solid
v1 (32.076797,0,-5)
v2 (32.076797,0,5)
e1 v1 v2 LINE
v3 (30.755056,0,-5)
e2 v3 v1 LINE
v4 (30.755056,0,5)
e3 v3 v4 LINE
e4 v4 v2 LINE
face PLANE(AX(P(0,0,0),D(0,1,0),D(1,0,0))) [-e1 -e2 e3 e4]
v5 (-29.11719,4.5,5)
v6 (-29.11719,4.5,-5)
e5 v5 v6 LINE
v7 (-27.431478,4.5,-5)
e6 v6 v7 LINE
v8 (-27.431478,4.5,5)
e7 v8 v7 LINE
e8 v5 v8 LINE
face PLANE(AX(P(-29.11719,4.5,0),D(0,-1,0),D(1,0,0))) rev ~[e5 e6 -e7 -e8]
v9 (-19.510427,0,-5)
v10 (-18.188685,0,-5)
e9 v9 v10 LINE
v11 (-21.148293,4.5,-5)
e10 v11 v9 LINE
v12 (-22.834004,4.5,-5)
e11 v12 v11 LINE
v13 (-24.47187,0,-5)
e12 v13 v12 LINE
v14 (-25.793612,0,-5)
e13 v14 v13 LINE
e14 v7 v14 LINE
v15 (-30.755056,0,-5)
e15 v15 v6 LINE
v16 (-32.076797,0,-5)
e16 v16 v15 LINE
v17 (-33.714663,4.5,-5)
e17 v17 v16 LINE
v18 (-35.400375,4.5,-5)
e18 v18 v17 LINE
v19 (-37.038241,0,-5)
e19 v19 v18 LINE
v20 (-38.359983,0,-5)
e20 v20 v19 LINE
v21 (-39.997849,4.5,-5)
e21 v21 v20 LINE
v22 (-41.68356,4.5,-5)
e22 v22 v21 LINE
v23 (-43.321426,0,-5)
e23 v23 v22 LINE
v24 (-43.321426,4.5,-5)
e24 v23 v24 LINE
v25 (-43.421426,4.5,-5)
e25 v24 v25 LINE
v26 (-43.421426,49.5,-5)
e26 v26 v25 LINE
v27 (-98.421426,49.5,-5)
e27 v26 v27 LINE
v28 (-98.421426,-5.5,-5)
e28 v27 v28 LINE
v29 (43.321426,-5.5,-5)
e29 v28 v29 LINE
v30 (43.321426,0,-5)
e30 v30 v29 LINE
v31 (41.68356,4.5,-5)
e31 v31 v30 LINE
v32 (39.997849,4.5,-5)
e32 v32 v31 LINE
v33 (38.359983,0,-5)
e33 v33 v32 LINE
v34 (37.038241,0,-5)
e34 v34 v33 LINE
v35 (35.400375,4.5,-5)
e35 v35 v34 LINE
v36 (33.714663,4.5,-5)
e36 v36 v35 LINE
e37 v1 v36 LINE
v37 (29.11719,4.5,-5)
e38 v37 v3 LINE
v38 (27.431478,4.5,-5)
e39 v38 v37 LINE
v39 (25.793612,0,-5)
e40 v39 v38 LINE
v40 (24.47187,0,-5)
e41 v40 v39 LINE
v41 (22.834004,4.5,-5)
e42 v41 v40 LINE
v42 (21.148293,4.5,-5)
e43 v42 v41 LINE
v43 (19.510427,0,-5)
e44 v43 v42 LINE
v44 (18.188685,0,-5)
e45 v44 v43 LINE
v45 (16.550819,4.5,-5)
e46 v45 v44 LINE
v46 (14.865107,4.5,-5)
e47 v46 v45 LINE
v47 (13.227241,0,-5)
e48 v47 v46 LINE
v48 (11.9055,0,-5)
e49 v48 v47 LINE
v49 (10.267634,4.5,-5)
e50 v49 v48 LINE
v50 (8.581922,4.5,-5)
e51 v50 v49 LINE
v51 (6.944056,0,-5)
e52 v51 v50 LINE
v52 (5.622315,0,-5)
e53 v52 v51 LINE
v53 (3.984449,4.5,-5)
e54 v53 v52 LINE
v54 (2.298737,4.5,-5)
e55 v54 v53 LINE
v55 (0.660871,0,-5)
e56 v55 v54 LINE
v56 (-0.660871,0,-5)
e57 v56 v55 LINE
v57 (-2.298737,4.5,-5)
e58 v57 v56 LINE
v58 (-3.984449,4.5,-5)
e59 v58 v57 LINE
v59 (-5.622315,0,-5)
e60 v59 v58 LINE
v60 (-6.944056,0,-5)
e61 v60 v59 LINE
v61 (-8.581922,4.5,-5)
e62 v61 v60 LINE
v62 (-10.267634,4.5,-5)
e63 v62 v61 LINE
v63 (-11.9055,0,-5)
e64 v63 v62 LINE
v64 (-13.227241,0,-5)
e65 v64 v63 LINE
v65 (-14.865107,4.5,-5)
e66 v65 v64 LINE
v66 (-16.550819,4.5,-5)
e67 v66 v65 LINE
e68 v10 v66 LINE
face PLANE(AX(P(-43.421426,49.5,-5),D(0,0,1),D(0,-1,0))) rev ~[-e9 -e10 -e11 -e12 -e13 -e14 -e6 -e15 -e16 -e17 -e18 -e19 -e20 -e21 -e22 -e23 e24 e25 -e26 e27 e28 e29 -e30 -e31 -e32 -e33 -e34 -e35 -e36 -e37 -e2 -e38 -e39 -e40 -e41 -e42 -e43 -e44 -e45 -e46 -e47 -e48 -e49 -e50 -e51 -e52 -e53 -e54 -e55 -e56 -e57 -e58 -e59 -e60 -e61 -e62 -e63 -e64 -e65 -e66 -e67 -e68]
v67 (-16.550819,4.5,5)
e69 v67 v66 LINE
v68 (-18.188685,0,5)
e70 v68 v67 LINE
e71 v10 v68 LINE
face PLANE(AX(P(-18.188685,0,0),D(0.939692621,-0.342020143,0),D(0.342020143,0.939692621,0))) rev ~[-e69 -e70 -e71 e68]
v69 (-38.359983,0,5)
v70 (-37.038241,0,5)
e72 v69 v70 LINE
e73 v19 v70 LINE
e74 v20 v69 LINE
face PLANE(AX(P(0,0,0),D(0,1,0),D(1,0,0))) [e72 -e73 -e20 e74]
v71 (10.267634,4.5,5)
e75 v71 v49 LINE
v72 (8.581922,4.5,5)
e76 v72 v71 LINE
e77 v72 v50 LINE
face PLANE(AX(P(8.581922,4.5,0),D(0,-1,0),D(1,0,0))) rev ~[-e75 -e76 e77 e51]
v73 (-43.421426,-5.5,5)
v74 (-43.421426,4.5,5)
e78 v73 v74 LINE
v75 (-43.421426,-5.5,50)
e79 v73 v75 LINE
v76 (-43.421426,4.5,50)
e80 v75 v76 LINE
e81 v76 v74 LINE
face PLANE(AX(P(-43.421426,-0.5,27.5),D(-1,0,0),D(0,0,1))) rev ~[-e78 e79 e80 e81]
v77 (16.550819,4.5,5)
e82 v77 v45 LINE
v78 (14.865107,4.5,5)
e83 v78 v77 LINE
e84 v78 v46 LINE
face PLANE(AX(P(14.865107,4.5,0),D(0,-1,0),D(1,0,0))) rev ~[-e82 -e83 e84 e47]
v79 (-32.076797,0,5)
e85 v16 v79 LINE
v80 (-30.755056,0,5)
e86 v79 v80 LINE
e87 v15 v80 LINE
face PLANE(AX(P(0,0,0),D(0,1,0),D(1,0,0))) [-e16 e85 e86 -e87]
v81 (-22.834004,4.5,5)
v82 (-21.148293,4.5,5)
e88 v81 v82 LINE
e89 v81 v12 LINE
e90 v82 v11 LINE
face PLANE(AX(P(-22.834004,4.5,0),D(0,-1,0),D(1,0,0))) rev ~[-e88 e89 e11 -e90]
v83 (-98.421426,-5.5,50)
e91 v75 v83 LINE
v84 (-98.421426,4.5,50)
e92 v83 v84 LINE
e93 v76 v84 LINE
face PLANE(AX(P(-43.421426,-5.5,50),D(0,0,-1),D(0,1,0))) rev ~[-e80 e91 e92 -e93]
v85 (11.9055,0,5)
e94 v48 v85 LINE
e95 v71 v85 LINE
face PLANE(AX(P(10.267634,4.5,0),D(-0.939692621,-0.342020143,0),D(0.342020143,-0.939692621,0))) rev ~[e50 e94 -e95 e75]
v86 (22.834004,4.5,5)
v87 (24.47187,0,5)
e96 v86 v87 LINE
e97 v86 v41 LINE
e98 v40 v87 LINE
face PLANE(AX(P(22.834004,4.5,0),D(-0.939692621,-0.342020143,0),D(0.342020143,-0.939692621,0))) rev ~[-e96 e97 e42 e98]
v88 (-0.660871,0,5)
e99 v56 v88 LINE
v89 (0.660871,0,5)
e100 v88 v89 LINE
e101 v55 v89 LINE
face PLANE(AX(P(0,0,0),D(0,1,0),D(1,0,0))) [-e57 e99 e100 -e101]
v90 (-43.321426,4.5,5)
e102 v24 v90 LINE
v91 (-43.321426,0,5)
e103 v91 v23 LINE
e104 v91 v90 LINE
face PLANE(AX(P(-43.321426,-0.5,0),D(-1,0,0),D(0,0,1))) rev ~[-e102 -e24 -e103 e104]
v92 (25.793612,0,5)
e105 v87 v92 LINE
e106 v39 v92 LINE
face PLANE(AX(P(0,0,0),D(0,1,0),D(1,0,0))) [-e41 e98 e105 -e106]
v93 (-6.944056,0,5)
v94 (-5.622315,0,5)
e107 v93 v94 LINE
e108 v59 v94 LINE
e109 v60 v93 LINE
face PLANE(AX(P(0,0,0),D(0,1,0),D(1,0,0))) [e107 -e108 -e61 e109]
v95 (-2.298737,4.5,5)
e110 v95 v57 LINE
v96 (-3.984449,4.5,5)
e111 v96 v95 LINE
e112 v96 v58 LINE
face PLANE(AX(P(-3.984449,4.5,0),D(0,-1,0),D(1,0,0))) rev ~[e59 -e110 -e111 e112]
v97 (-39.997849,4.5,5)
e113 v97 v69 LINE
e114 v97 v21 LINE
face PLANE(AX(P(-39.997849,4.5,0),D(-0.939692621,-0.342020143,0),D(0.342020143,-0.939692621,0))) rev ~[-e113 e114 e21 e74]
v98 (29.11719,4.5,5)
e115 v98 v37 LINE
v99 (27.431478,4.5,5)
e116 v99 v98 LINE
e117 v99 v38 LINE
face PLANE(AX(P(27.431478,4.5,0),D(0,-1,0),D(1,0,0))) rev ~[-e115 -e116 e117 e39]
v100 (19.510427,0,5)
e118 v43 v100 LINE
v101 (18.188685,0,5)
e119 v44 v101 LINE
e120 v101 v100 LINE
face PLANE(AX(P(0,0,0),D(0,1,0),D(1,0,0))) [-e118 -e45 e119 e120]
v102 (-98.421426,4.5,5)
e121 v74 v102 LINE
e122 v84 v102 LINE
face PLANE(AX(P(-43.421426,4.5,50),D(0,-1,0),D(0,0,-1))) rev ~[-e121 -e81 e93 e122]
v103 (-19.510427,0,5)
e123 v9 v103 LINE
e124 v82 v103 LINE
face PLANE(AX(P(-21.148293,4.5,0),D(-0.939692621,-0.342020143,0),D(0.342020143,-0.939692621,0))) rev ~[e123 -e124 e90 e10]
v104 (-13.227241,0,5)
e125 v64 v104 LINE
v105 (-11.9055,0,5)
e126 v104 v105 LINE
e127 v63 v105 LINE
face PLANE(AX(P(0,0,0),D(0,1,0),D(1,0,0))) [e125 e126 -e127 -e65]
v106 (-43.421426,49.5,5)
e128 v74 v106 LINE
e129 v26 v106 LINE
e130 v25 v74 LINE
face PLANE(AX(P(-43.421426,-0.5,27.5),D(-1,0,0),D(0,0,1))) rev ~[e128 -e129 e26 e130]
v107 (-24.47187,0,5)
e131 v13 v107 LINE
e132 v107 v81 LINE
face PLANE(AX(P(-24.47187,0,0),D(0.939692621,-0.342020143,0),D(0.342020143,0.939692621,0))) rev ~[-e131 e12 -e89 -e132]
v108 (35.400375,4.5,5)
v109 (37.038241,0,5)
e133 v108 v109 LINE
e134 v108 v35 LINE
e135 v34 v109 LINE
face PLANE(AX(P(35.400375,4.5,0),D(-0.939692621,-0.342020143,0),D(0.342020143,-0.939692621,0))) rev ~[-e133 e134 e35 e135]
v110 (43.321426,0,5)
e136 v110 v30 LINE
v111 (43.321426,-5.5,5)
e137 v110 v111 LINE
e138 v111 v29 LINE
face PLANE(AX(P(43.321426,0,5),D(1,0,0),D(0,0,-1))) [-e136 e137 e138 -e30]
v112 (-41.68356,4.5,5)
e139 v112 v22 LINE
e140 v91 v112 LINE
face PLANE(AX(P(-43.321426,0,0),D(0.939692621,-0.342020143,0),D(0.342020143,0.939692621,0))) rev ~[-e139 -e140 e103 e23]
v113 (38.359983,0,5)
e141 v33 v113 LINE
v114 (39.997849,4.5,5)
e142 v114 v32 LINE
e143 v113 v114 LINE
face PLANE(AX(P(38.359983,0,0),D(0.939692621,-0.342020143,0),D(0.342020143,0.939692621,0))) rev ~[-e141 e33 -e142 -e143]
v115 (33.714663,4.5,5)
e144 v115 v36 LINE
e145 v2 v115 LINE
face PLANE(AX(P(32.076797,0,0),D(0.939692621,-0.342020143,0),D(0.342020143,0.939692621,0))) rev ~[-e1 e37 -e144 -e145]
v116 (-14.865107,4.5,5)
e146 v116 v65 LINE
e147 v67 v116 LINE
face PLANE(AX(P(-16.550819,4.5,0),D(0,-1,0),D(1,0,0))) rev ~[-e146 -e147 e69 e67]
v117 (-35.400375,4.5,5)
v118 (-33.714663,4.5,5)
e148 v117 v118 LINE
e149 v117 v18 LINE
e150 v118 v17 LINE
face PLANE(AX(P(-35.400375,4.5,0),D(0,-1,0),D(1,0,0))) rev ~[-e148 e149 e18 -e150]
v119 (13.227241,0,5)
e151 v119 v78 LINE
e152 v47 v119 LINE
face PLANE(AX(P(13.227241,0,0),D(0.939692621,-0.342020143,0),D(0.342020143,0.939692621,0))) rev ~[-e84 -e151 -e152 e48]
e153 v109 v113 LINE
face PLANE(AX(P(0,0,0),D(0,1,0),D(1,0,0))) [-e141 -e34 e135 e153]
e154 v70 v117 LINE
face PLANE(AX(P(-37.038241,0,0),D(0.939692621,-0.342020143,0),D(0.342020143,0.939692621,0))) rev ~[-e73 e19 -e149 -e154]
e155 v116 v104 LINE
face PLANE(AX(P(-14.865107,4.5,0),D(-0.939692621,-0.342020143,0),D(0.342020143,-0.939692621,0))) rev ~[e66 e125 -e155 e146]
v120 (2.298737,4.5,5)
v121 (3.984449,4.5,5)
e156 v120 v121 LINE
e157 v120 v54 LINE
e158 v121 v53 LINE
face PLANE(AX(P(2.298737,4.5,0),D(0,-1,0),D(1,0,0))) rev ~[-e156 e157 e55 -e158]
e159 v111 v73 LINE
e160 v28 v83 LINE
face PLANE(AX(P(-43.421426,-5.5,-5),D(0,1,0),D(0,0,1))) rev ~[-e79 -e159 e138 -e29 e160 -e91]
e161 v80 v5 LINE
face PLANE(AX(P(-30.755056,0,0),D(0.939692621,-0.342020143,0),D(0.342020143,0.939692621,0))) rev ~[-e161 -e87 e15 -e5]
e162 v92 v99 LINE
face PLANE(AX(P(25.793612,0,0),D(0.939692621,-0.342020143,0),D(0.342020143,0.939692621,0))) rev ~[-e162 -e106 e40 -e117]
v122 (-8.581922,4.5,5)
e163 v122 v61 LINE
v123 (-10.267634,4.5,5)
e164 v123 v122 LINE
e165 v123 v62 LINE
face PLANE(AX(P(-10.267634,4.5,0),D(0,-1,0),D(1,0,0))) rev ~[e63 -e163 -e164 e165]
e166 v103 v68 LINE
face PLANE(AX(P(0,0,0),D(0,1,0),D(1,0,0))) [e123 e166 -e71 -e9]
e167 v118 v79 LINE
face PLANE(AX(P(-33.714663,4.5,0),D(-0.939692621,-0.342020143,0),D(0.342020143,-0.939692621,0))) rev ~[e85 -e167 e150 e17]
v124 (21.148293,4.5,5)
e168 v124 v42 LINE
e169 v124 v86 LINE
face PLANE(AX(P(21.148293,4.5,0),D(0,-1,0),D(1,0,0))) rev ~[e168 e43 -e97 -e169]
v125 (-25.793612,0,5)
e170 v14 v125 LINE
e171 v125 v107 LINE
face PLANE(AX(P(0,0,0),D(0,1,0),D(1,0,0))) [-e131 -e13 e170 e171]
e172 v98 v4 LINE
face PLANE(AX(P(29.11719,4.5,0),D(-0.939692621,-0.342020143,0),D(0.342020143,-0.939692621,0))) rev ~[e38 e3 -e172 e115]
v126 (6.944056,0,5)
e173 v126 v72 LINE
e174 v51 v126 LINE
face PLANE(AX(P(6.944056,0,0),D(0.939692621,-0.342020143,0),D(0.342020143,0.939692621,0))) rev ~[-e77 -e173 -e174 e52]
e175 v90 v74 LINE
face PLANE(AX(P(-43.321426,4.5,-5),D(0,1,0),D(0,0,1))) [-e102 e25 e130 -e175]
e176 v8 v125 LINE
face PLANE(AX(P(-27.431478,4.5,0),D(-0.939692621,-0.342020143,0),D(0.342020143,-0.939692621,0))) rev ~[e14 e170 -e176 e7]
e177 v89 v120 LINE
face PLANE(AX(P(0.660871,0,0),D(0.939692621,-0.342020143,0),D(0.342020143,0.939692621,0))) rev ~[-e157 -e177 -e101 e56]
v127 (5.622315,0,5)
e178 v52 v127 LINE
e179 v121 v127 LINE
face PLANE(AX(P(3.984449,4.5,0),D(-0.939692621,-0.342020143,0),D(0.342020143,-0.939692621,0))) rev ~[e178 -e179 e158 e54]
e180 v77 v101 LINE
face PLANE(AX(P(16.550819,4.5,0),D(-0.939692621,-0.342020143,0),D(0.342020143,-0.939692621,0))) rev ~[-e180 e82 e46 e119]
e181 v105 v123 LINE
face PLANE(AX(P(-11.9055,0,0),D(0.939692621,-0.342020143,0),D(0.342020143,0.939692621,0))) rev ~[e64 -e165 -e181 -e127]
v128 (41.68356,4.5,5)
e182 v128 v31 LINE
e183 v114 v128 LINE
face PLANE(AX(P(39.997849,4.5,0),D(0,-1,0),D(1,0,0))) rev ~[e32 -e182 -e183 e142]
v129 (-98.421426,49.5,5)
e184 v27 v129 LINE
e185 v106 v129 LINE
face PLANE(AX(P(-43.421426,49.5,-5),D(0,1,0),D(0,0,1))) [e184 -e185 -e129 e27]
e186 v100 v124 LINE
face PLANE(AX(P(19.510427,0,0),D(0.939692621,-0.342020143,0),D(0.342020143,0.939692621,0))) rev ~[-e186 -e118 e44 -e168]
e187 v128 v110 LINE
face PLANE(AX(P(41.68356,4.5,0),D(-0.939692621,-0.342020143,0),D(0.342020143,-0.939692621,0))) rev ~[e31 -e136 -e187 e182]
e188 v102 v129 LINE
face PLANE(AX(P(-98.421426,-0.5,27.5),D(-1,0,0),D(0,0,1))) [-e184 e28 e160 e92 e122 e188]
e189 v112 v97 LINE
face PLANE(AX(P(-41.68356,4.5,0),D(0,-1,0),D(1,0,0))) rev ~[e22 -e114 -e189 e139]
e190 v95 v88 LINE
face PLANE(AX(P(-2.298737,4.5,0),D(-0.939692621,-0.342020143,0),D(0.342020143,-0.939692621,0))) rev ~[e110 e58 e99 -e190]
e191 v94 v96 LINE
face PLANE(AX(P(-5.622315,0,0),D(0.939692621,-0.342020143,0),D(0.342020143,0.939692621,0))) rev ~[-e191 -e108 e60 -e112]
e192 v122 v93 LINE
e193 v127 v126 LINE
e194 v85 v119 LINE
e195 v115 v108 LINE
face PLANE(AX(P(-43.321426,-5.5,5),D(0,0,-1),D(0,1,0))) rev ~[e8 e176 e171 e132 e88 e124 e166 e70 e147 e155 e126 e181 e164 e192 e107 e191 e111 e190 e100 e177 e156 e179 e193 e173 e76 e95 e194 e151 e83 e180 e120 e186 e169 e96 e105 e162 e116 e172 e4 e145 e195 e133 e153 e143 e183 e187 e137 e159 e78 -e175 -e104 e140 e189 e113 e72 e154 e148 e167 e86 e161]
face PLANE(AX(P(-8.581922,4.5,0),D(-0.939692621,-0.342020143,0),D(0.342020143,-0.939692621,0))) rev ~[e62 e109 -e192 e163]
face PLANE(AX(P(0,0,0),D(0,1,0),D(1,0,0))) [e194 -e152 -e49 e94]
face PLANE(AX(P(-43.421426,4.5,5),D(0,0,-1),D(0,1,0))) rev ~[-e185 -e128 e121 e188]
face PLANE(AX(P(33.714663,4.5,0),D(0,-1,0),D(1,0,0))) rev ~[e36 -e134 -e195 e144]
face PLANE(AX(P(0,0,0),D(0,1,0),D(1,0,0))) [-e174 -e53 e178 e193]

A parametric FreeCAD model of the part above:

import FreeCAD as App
import Part
import Sketcher
from FreeCAD import Vector
Q = App.Units.Quantity

doc = App.newDocument("Part")
params = doc.addObject("Spreadsheet::Sheet", "Params")
for row, (alias, value) in enumerate([
    ("sketch1_height", "10 mm"),
    ("pad1_length", "5.5 mm"),
    ("pad2_length", "10 mm"),
    ("linearpattern_pitch", "6.283185 mm"),
    ("sketch3_width", "10 mm"),
    ("pad3_length", "0.1 mm"),
    ("sketch4_width", "10 mm"),
    ("sketch4_width2", "45 mm"),
    ("pad4_length", "55 mm"),
], start=1):
    params.set(f"A{row}", alias)
    params.set(f"B{row}", "=" + value)
    params.setAlias(f"B{row}", alias)

body = doc.addObject("PartDesign::Body", "Body")

sketch1 = body.newObject("Sketcher::SketchObject", "Sketch")
sketch1.AttachmentSupport = (doc.getObject("XZ_Plane"), [""])
sketch1.MapMode = "FlatFace"
sketch1.addGeometry([
    Part.LineSegment(Vector(-43, -5, 0), Vector(-43, 5, 0)),
    Part.LineSegment(Vector(-43, 5, 0), Vector(43, 5, 0)),
    Part.LineSegment(Vector(43, 5, 0), Vector(43, -5, 0)),
    Part.LineSegment(Vector(43, -5, 0), Vector(-43, -5, 0)),
], False)
sketch1.addConstraint([
    Sketcher.Constraint("Coincident", 0, 2, 1, 1),
    Sketcher.Constraint("Coincident", 1, 2, 2, 1),
    Sketcher.Constraint("Coincident", 2, 2, 3, 1),
    Sketcher.Constraint("Coincident", 3, 2, 0, 1),
    Sketcher.Constraint("Vertical", 0),
    Sketcher.Constraint("Horizontal", 1),
    Sketcher.Constraint("Vertical", 2),
    Sketcher.Constraint("Horizontal", 3),
    Sketcher.Constraint("Symmetric", 0, 2, 2, 2, -1, 1),
    Sketcher.Constraint("DistanceY", 0, 1, 0, 2, 10.0),
    Sketcher.Constraint("DistanceX", 1, 1, 1, 2, 86.642853),
])
sketch1.setExpression("Constraints[9]", "Params.sketch1_height")
pad1 = body.newObject("PartDesign::Pad", "Pad")
pad1.Profile = sketch1
pad1.setExpression("Length", "Params.pad1_length")

sketch2 = body.newObject("Sketcher::SketchObject", "Sketch001")
sketch2.AttachmentSupport = (doc.getObject("XY_Plane"), [""])
sketch2.MapMode = "FlatFace"
sketch2.addGeometry([
    Part.LineSegment(Vector(-41.7, 4.5, 0), Vector(-43.3, 0, 0)),
    Part.LineSegment(Vector(-43.3, 0, 0), Vector(-38.4, 0, 0)),
    Part.LineSegment(Vector(-38.4, 0, 0), Vector(-40, 4.5, 0)),
    Part.LineSegment(Vector(-40, 4.5, 0), Vector(-41.7, 4.5, 0)),
], False)
sketch2.addConstraint([
    Sketcher.Constraint("Coincident", 0, 2, 1, 1),
    Sketcher.Constraint("Coincident", 1, 2, 2, 1),
    Sketcher.Constraint("Coincident", 2, 2, 3, 1),
    Sketcher.Constraint("Coincident", 3, 2, 0, 1),
    Sketcher.Constraint("Horizontal", 1),
    Sketcher.Constraint("Horizontal", 3),
    Sketcher.Constraint("PointOnObject", 0, 2, -1),
    Sketcher.Constraint("Equal", 0, 2),
    Sketcher.Constraint("Angle", 0, Q("-110 deg")),
    Sketcher.Constraint("DistanceY", -1, 1, 2, 2, 4.5),
    Sketcher.Constraint("DistanceX", 3, 2, 3, 1, 1.685712),
    Sketcher.Constraint("DistanceX", 2, 2, -1, 1, 39.997849),
])
pad2 = body.newObject("PartDesign::Pad", "Pad001")
pad2.Profile = sketch2
pad2.setExpression("Length", "Params.pad2_length")
pad2.Midplane = True
doc.recompute()

linearpattern = body.newObject("PartDesign::LinearPattern", "LinearPattern")
linearpattern.Originals = [pad2]
linearpattern.Direction = (doc.getObject("X_Axis"), [""])
linearpattern.Mode = "offset"
linearpattern.setExpression("Offset", "Params.linearpattern_pitch")
linearpattern.Occurrences = 14
body.Tip = linearpattern

sketch3 = body.newObject("Sketcher::SketchObject", "Sketch002")
sketch3.AttachmentSupport = (doc.getObject("YZ_Plane"), [""])
sketch3.MapMode = "FlatFace"
sketch3.AttachmentOffset = App.Placement(Vector(0, 0, -43.321426), App.Rotation())
sketch3.addGeometry([
    Part.LineSegment(Vector(4, -5, 0), Vector(-6, -5, 0)),
    Part.LineSegment(Vector(-6, -5, 0), Vector(-6, 5, 0)),
    Part.LineSegment(Vector(-6, 5, 0), Vector(4, 5, 0)),
    Part.LineSegment(Vector(4, 5, 0), Vector(4, -5, 0)),
], False)
sketch3.addConstraint([
    Sketcher.Constraint("Coincident", 0, 2, 1, 1),
    Sketcher.Constraint("Coincident", 1, 2, 2, 1),
    Sketcher.Constraint("Coincident", 2, 2, 3, 1),
    Sketcher.Constraint("Coincident", 3, 2, 0, 1),
    Sketcher.Constraint("Horizontal", 0),
    Sketcher.Constraint("Vertical", 1),
    Sketcher.Constraint("Horizontal", 2),
    Sketcher.Constraint("Vertical", 3),
    Sketcher.Constraint("Equal", 2, 1),
    Sketcher.Constraint("DistanceX", 0, 2, 0, 1, 10.0),
    Sketcher.Constraint("DistanceY", 0, 2, -1, 1, 5.0),
    Sketcher.Constraint("DistanceX", 0, 2, -1, 1, 5.5),
])
sketch3.setExpression("Constraints[9]", "Params.sketch3_width")
pad3 = body.newObject("PartDesign::Pad", "Pad002")
pad3.Profile = sketch3
pad3.setExpression("Length", "Params.pad3_length")
pad3.Reversed = True

sketch4 = body.newObject("Sketcher::SketchObject", "Sketch003")
sketch4.AttachmentSupport = (doc.getObject("YZ_Plane"), [""])
sketch4.MapMode = "FlatFace"
sketch4.AttachmentOffset = App.Placement(Vector(0, 0, -43.421426), App.Rotation())
sketch4.addGeometry([
    Part.LineSegment(Vector(-6, 50, 0), Vector(4, 50, 0)),
    Part.LineSegment(Vector(4, 50, 0), Vector(4, 5, 0)),
    Part.LineSegment(Vector(4, 5, 0), Vector(50, 5, 0)),
    Part.LineSegment(Vector(50, 5, 0), Vector(50, -5, 0)),
    Part.LineSegment(Vector(50, -5, 0), Vector(-6, -5, 0)),
    Part.LineSegment(Vector(-6, -5, 0), Vector(-6, 50, 0)),
], False)
sketch4.addConstraint([
    Sketcher.Constraint("Coincident", 0, 2, 1, 1),
    Sketcher.Constraint("Coincident", 1, 2, 2, 1),
    Sketcher.Constraint("Coincident", 2, 2, 3, 1),
    Sketcher.Constraint("Coincident", 3, 2, 4, 1),
    Sketcher.Constraint("Coincident", 4, 2, 5, 1),
    Sketcher.Constraint("Coincident", 5, 2, 0, 1),
    Sketcher.Constraint("Horizontal", 0),
    Sketcher.Constraint("Vertical", 1),
    Sketcher.Constraint("Horizontal", 2),
    Sketcher.Constraint("Vertical", 3),
    Sketcher.Constraint("Horizontal", 4),
    Sketcher.Constraint("Vertical", 5),
    Sketcher.Constraint("Equal", 2, 1),
    Sketcher.Constraint("Equal", 0, 3),
    Sketcher.Constraint("DistanceX", 0, 1, 0, 2, 10.0),
    Sketcher.Constraint("DistanceX", 2, 1, 2, 2, 45.0),
    Sketcher.Constraint("DistanceY", -1, 1, 0, 2, 50.0),
    Sketcher.Constraint("DistanceX", -1, 1, 0, 2, 4.5),
])
sketch4.setExpression("Constraints[14]", "Params.sketch4_width")
sketch4.setExpression("Constraints[15]", "Params.sketch4_width2")
pad4 = body.newObject("PartDesign::Pad", "Pad003")
pad4.Profile = sketch4
pad4.setExpression("Length", "Params.pad4_length")
pad4.Reversed = True

doc.recompute()
